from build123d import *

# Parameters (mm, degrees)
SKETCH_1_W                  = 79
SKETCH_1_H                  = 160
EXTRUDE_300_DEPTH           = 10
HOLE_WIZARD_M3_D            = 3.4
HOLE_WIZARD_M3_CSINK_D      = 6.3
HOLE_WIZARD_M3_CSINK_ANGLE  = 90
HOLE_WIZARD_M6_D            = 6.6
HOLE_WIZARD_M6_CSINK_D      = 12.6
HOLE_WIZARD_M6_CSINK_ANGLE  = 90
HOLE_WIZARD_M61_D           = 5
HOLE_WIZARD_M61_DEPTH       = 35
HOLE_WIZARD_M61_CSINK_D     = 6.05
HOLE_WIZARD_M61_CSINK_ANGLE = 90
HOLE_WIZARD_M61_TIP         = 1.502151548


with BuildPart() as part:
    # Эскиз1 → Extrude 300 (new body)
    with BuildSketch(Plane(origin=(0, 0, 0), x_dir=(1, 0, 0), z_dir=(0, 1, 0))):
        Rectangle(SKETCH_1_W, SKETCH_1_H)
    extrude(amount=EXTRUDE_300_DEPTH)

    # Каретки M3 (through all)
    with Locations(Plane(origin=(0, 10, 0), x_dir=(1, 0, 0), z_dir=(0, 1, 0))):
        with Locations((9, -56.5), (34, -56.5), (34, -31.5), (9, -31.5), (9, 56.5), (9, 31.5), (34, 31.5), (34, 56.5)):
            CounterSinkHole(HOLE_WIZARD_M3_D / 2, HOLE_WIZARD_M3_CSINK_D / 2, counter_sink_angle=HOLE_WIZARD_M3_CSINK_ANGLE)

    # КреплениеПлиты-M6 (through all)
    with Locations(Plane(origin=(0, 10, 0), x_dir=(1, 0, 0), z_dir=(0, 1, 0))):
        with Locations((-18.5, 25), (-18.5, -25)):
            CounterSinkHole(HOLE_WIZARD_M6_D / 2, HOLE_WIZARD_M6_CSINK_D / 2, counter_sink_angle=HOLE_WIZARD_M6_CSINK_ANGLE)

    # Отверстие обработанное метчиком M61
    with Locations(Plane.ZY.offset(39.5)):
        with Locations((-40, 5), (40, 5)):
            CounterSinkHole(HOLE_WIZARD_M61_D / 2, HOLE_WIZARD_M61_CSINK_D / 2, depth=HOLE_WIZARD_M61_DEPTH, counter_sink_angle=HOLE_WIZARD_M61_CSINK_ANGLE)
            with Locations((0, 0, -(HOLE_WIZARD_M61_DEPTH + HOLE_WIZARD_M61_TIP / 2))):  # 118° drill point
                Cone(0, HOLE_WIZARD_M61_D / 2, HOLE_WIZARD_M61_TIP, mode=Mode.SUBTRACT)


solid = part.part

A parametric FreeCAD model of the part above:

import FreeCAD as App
import Part
import Sketcher
Q = App.Units.Quantity


def add_polygon(sketch, points):
    """Adds a closed chain of lines whose ends are joined by coincident constraints."""
    first, n = sketch.GeometryCount, len(points)
    for a, b in zip(points, points[1:] + points[:1]):
        sketch.addGeometry(Part.LineSegment(App.Vector(*a, 0), App.Vector(*b, 0)), False)
    for i in range(n):
        sketch.addConstraint(Sketcher.Constraint("Coincident", first + i, 2, first + (i + 1) % n, 1))

doc = App.newDocument("Part")
body = doc.addObject("PartDesign::Body", "Body")

sketch1 = doc.addObject("Sketcher::SketchObject", "Sketch")
body.addObject(sketch1)
sketch1.AttachmentSupport = (doc.XZ_Plane, [""])
sketch1.MapMode = "FlatFace"
add_polygon(sketch1, [(-40, -80), (-40, 80), (40, 80), (40, -80)])
sketch1.addConstraint([
    Sketcher.Constraint("Vertical", 0),
    Sketcher.Constraint("Horizontal", 1),
    Sketcher.Constraint("Vertical", 2),
    Sketcher.Constraint("Horizontal", 3),
    Sketcher.Constraint("Symmetric", 0, 2, 2, 2, -1, 1),
    Sketcher.Constraint("DistanceX", 1, 1, 1, 2, Q("79 mm")),
    Sketcher.Constraint("DistanceY", 0, 1, 0, 2, Q("160 mm")),
])
pad1 = doc.addObject("PartDesign::Pad", "Pad")
body.addObject(pad1)
pad1.Profile = sketch1
pad1.Length = 10
pad1.Reversed = True

sketch2 = doc.addObject("Sketcher::SketchObject", "Sketch001")
body.addObject(sketch2)
sketch2.AttachmentSupport = (doc.XZ_Plane, [""])
sketch2.MapMode = "FlatFace"
sketch2.AttachmentOffset = App.Placement(App.Vector(0, 0, -10), App.Rotation())
sketch2.addGeometry([
    Part.Circle(App.Vector(9, 56.5, 0), App.Vector(0, 0, 1), 1.7),
    Part.Circle(App.Vector(34, 56.5, 0), App.Vector(0, 0, 1), 1.7),
    Part.Circle(App.Vector(34, 31.5, 0), App.Vector(0, 0, 1), 1.7),
    Part.Circle(App.Vector(9, 31.5, 0), App.Vector(0, 0, 1), 1.7),
    Part.Circle(App.Vector(9, -56.5, 0), App.Vector(0, 0, 1), 1.7),
    Part.Circle(App.Vector(9, -31.5, 0), App.Vector(0, 0, 1), 1.7),
    Part.Circle(App.Vector(34, -31.5, 0), App.Vector(0, 0, 1), 1.7),
    Part.Circle(App.Vector(34, -56.5, 0), App.Vector(0, 0, 1), 1.7),
], False)
sketch2.addConstraint([
    Sketcher.Constraint("Equal", 0, 1),
    Sketcher.Constraint("Equal", 1, 2),
    Sketcher.Constraint("Equal", 2, 3),
    Sketcher.Constraint("Equal", 3, 4),
    Sketcher.Constraint("Equal", 4, 5),
    Sketcher.Constraint("Equal", 5, 6),
    Sketcher.Constraint("Equal", 6, 7),
    Sketcher.Constraint("Symmetric", 0, 3, 4, 3, -1),
    Sketcher.Constraint("Symmetric", 3, 3, 5, 3, -1),
    Sketcher.Constraint("Symmetric", 2, 3, 6, 3, -1),
    Sketcher.Constraint("Symmetric", 1, 3, 7, 3, -1),
    Sketcher.Constraint("Horizontal", 0, 3, 1, 3),
    Sketcher.Constraint("Horizontal", 2, 3, 3, 3),
    Sketcher.Constraint("Vertical", 1, 3, 2, 3),
    Sketcher.Constraint("Vertical", 0, 3, 3, 3),
    Sketcher.Constraint("Diameter", 0, Q("3.4 mm")),
    Sketcher.Constraint("DistanceX", -1, 1, 0, 3, Q("9 mm")),
    Sketcher.Constraint("DistanceX", -1, 1, 1, 3, Q("34 mm")),
    Sketcher.Constraint("DistanceY", 2, 3, 1, 3, Q("25 mm")),
    Sketcher.Constraint("DistanceY", 4, 3, 3, 3, Q("88 mm")),
])
doc.recompute()
hole = doc.addObject("PartDesign::Hole", "Hole")
body.addObject(hole)
hole.Profile = sketch2
hole.ThreadType = "None"
hole.Diameter = 3.4
hole.DepthType = "ThroughAll"
hole.HoleCutType = "Countersink"
hole.HoleCutDiameter = 6.3
hole.HoleCutCountersinkAngle = 90
hole.Reversed = True

sketch3 = doc.addObject("Sketcher::SketchObject", "Sketch002")
body.addObject(sketch3)
sketch3.AttachmentSupport = (doc.XZ_Plane, [""])
sketch3.MapMode = "FlatFace"
sketch3.AttachmentOffset = App.Placement(App.Vector(0, 0, -10), App.Rotation())
sketch3.addGeometry([
    Part.Circle(App.Vector(-18.5, -25, 0), App.Vector(0, 0, 1), 3.3),
    Part.Circle(App.Vector(-18.5, 25, 0), App.Vector(0, 0, 1), 3.3),
], False)
sketch3.addConstraint([
    Sketcher.Constraint("Equal", 0, 1),
    Sketcher.Constraint("Symmetric", 0, 3, 1, 3, -1),
    Sketcher.Constraint("Diameter", 0, Q("6.6 mm")),
    Sketcher.Constraint("DistanceY", 0, 3, -1, 1, Q("25 mm")),
    Sketcher.Constraint("DistanceX", 0, 3, -1, 1, Q("18.5 mm")),
])
doc.recompute()
hole2 = doc.addObject("PartDesign::Hole", "Hole001")
body.addObject(hole2)
hole2.Profile = sketch3
hole2.ThreadType = "None"
hole2.Diameter = 6.6
hole2.DepthType = "ThroughAll"
hole2.HoleCutType = "Countersink"
hole2.HoleCutDiameter = 12.6
hole2.HoleCutCountersinkAngle = 90
hole2.Reversed = True

sketch4 = doc.addObject("Sketcher::SketchObject", "Sketch003")
body.addObject(sketch4)
sketch4.AttachmentSupport = (doc.YZ_Plane, [""])
sketch4.MapMode = "FlatFace"
sketch4.AttachmentOffset = App.Placement(App.Vector(0, 0, -39.5), App.Rotation())
sketch4.addGeometry([
    Part.Circle(App.Vector(5, -40, 0), App.Vector(0, 0, 1), 2.5),
    Part.Circle(App.Vector(5, 40, 0), App.Vector(0, 0, 1), 2.5),
], False)
sketch4.addConstraint([
    Sketcher.Constraint("Equal", 0, 1),
    Sketcher.Constraint("Symmetric", 0, 3, 1, 3, -1),
    Sketcher.Constraint("Diameter", 0, Q("5 mm")),
    Sketcher.Constraint("DistanceX", -1, 1, 0, 3, Q("5 mm")),
    Sketcher.Constraint("DistanceY", 0, 3, -1, 1, Q("40 mm")),
])
doc.recompute()
hole3 = doc.addObject("PartDesign::Hole", "Hole002")
body.addObject(hole3)
hole3.Profile = sketch4
hole3.ThreadType = "None"
hole3.Diameter = 5
hole3.DepthType = "Dimension"
hole3.Depth = 35
hole3.DrillPoint = "Angled"
hole3.DrillPointAngle = 118
hole3.HoleCutType = "Countersink"
hole3.HoleCutDiameter = 6.05
hole3.HoleCutCountersinkAngle = 90
hole3.Reversed = True

doc.recompute()
